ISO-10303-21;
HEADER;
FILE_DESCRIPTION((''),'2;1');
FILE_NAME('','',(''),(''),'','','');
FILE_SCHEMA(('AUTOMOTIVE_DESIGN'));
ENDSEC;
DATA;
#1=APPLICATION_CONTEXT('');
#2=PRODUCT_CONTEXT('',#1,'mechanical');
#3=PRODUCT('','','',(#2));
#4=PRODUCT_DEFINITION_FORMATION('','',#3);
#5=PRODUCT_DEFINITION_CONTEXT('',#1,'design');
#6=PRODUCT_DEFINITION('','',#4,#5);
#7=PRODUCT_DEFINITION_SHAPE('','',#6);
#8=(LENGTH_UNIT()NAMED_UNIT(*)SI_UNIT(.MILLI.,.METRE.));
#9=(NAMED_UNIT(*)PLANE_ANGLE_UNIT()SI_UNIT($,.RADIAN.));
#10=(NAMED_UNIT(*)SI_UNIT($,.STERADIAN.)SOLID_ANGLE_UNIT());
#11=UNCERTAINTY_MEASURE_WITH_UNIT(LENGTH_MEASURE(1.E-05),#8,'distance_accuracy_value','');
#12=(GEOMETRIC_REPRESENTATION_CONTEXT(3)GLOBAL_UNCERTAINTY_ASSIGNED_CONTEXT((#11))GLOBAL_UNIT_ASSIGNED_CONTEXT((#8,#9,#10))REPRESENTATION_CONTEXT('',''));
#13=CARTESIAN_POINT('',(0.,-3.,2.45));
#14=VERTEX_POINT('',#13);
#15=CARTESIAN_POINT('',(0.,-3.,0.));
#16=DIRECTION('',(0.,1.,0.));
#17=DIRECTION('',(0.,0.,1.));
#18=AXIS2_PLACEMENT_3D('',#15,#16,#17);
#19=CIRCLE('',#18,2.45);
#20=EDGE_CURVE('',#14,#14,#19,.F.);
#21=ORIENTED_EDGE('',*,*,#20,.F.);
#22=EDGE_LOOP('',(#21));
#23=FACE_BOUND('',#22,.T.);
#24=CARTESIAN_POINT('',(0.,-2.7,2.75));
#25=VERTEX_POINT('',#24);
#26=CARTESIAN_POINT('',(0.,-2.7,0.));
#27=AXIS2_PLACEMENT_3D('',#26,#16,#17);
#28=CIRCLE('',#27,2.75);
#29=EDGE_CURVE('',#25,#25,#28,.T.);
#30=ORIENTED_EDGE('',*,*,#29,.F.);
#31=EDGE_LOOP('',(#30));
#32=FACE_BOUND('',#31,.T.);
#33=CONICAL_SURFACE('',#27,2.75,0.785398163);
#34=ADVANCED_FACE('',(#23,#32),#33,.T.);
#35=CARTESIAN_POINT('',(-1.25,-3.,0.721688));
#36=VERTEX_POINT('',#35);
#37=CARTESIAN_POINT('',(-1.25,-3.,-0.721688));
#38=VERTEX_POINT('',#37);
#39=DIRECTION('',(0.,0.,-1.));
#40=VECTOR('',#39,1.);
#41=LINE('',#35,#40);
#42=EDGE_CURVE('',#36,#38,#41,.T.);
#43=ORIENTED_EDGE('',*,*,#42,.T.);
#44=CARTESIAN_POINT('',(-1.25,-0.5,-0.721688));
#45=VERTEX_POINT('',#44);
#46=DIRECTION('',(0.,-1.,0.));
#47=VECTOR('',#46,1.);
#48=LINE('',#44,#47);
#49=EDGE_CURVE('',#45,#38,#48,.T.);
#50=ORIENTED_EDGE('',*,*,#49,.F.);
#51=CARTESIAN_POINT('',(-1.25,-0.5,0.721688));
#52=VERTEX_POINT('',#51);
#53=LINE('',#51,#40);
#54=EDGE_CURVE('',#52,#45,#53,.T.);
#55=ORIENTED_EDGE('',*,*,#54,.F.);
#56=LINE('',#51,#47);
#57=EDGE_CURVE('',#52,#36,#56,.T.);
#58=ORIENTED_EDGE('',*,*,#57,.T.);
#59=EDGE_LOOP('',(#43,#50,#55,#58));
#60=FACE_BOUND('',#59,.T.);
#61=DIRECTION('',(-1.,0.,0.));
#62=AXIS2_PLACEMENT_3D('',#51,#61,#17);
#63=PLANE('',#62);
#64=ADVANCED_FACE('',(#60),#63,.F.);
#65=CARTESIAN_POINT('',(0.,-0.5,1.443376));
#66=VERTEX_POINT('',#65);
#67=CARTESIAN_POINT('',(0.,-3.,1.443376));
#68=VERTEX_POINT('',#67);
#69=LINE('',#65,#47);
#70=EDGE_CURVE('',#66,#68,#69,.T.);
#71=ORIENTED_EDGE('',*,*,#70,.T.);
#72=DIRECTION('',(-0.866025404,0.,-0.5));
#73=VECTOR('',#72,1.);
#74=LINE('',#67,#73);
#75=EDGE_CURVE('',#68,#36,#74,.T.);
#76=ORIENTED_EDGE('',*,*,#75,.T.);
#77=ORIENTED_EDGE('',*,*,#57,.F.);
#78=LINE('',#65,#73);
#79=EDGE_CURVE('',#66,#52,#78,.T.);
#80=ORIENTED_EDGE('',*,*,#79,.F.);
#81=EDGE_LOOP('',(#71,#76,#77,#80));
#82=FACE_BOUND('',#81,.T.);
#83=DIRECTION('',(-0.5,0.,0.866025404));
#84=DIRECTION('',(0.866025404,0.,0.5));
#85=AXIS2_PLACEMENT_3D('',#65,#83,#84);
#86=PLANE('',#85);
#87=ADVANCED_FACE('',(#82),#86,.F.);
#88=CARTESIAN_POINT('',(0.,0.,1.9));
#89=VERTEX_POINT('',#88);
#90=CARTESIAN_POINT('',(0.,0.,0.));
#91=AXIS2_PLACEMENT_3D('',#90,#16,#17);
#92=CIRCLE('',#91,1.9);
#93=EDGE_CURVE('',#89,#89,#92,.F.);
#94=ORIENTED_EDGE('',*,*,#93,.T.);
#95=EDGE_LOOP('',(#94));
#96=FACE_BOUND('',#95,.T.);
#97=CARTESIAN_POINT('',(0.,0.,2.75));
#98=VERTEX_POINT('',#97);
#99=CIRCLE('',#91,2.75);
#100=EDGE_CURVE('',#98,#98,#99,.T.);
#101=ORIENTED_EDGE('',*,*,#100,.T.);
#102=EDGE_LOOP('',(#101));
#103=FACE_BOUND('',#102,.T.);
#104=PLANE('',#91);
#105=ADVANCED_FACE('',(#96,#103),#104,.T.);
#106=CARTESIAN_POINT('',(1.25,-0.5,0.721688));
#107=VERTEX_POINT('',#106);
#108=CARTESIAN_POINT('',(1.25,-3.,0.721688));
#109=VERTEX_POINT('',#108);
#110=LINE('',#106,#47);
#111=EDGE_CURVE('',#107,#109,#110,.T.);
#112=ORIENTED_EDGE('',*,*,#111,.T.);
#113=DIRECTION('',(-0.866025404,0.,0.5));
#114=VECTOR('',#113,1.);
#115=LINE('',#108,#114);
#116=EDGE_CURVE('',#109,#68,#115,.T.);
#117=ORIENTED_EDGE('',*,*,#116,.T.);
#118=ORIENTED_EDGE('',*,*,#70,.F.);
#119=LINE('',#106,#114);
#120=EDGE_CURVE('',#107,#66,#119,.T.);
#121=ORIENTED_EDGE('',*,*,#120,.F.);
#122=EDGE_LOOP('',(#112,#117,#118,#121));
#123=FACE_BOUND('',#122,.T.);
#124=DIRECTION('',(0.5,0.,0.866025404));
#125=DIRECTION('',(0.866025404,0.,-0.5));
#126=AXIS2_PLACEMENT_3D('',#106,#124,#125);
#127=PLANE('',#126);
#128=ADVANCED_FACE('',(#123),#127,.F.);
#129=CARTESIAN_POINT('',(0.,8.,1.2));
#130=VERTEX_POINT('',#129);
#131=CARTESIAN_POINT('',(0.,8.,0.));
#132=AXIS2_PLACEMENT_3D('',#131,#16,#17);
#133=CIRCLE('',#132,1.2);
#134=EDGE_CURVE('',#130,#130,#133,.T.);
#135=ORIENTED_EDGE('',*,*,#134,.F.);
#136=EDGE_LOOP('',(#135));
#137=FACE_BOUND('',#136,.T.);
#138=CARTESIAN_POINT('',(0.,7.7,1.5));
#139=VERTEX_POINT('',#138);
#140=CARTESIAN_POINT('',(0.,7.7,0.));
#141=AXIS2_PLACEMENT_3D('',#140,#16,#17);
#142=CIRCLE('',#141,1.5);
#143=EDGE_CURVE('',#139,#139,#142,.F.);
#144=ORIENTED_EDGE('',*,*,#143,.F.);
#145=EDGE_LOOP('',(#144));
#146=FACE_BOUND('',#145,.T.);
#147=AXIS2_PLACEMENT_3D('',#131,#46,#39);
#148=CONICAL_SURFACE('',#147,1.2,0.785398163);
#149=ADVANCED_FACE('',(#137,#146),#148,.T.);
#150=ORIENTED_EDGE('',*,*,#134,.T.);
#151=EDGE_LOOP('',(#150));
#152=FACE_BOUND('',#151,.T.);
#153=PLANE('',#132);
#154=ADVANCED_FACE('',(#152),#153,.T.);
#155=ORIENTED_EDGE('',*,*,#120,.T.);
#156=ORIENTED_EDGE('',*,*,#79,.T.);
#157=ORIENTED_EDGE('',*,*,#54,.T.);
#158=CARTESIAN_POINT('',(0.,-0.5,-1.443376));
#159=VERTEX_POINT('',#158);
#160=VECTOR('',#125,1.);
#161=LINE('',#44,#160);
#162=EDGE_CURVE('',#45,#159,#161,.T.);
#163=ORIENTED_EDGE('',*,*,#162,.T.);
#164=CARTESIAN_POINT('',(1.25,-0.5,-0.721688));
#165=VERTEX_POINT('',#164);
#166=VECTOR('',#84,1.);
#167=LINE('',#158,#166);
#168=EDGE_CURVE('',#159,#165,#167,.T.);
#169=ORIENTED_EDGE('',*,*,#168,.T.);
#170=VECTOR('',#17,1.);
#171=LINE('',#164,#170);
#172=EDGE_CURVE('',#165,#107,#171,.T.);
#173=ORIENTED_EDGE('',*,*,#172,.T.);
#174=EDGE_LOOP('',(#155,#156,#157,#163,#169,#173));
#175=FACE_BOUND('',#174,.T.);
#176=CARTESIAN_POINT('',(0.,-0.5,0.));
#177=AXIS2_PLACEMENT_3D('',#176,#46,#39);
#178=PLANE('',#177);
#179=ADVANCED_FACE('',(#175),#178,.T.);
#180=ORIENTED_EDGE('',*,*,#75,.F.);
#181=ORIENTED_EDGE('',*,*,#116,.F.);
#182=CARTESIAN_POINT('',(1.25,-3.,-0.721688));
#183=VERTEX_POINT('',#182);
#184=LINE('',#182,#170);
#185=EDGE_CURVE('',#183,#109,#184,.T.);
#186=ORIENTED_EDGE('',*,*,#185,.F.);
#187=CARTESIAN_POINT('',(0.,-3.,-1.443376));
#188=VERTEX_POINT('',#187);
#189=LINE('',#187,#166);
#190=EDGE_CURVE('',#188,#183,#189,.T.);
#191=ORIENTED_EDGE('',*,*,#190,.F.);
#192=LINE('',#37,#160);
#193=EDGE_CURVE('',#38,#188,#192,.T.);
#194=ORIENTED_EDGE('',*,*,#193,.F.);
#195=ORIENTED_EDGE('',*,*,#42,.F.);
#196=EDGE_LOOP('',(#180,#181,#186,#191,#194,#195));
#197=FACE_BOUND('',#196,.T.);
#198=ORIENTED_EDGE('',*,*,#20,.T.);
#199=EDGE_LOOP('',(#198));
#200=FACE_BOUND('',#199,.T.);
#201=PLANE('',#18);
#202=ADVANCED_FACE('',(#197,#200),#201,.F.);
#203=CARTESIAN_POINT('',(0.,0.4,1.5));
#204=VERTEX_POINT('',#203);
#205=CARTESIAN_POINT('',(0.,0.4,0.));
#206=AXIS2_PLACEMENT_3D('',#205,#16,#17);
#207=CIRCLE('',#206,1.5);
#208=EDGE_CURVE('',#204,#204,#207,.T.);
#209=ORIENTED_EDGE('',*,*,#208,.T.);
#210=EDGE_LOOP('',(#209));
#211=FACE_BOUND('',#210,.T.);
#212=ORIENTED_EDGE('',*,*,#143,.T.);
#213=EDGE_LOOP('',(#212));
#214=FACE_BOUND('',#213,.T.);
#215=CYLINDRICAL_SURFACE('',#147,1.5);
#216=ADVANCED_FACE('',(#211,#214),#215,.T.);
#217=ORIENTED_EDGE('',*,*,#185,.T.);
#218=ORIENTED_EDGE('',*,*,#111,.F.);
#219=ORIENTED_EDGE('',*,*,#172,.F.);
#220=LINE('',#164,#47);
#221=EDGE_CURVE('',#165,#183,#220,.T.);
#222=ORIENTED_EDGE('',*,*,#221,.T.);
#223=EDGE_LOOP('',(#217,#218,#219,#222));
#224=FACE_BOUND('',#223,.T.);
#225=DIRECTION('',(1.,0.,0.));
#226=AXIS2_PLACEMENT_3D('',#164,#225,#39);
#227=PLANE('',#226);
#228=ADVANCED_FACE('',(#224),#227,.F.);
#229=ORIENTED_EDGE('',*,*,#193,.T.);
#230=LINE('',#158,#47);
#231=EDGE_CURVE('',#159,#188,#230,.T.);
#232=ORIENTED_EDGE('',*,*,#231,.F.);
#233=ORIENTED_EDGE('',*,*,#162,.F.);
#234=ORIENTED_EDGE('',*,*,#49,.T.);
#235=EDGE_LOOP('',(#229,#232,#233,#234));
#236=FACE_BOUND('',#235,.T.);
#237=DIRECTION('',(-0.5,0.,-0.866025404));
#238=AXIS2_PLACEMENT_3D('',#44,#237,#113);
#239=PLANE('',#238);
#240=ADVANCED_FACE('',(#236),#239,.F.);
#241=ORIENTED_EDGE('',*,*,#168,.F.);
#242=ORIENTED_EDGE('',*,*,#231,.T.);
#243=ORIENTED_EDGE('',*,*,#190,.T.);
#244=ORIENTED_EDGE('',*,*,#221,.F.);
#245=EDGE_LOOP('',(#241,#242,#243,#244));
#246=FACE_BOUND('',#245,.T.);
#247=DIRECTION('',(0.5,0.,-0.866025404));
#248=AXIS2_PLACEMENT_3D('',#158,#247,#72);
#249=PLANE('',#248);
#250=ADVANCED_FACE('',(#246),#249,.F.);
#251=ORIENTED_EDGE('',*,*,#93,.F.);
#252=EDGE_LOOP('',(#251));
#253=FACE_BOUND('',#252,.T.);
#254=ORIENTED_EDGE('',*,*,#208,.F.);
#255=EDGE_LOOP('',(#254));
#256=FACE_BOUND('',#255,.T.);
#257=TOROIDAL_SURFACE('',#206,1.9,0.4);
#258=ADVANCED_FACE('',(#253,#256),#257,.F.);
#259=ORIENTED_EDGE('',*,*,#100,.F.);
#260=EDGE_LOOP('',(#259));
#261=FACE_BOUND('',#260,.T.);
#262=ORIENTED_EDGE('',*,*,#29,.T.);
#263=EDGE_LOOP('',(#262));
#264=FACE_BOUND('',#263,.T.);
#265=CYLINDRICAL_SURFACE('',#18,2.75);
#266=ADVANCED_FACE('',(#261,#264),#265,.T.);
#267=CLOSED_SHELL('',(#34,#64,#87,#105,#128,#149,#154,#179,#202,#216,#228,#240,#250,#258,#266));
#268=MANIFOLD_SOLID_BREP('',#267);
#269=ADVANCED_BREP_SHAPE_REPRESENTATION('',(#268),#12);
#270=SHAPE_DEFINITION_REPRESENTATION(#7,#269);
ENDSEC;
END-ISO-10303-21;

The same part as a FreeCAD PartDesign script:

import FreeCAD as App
import Part
import Sketcher
Q = App.Units.Quantity


def edges_at(feature, points):
    """Names of the edges that pass closest to the given points."""
    edges = feature.Shape.Edges
    near = lambda p: min(range(len(edges)), key=lambda i: edges[i].distToShape(Part.Vertex(*p))[0])
    return sorted({f"Edge{near(p) + 1}" for p in points})

doc = App.newDocument("Part")
body = doc.addObject("PartDesign::Body", "Body")

# Sketch on XZ plane
sketch1 = doc.addObject("Sketcher::SketchObject", "Sketch")
body.addObject(sketch1)
sketch1.AttachmentSupport = (doc.XZ_Plane, [""])
sketch1.MapMode = "FlatFace"
sketch1.addGeometry(Part.Circle(App.Vector(0, 0, 0), App.Vector(0, 0, 1), 1.5), False)
sketch1.addConstraint([
    Sketcher.Constraint("Coincident", 0, 3, -1, 1),
    Sketcher.Constraint("Diameter", 0, 3.0),
])
pad1 = doc.addObject("PartDesign::Pad", "Pad")
body.addObject(pad1)
pad1.Profile = sketch1
pad1.Length = 8
pad1.Reversed = True

# Sketch on XZ plane
sketch2 = doc.addObject("Sketcher::SketchObject", "Sketch001")
body.addObject(sketch2)
sketch2.AttachmentSupport = (doc.XZ_Plane, [""])
sketch2.MapMode = "FlatFace"
sketch2.addGeometry(Part.Circle(App.Vector(0, 0, 0), App.Vector(0, 0, 1), 2.8), False)
sketch2.addConstraint([
    Sketcher.Constraint("Coincident", 0, 3, -1, 1),
    Sketcher.Constraint("Diameter", 0, 5.5),
])
pad2 = doc.addObject("PartDesign::Pad", "Pad001")
body.addObject(pad2)
pad2.Profile = sketch2
pad2.Length = 3
doc.recompute()

fillet = doc.addObject("PartDesign::Fillet", "Fillet")
body.addObject(fillet)
fillet.Base = (pad2, edges_at(pad2, [(0, 0, -1.5)]))
fillet.Radius = 0.4
doc.recompute()

chamfer = doc.addObject("PartDesign::Chamfer", "Chamfer")
body.addObject(chamfer)
chamfer.Base = (fillet, edges_at(fillet, [(0, 8, -1.5), (0, -3, -2.75)]))
chamfer.Size = 0.3

# Sketch on XZ plane
sketch3 = doc.addObject("Sketcher::SketchObject", "Sketch002")
body.addObject(sketch3)
sketch3.AttachmentSupport = (doc.XZ_Plane, [""])
sketch3.MapMode = "FlatFace"
sketch3.AttachmentOffset = App.Placement(App.Vector(0, 0, 3), App.Rotation())
sketch3.addGeometry([
    Part.LineSegment(App.Vector(0, 1.4, 0), App.Vector(-1.2, 0.7, 0)),  # 0
    Part.LineSegment(App.Vector(-1.2, 0.7, 0), App.Vector(-1.2, -0.7, 0)),  # 1
    Part.LineSegment(App.Vector(-1.2, -0.7, 0), App.Vector(0, -1.4, 0)),  # 2
    Part.LineSegment(App.Vector(0, -1.4, 0), App.Vector(1.2, -0.7, 0)),  # 3
    Part.LineSegment(App.Vector(1.2, -0.7, 0), App.Vector(1.2, 0.7, 0)),  # 4
    Part.LineSegment(App.Vector(1.2, 0.7, 0), App.Vector(0, 1.4, 0)),  # 5
], False)
sketch3.addConstraint([
    Sketcher.Constraint("Coincident", 0, 2, 1, 1),
    Sketcher.Constraint("Coincident", 1, 2, 2, 1),
    Sketcher.Constraint("Coincident", 2, 2, 3, 1),
    Sketcher.Constraint("Coincident", 3, 2, 4, 1),
    Sketcher.Constraint("Coincident", 4, 2, 5, 1),
    Sketcher.Constraint("Coincident", 5, 2, 0, 1),
    Sketcher.Constraint("Vertical", 1),
    Sketcher.Constraint("Vertical", 4),
    Sketcher.Constraint("Symmetric", 0, 2, 3, 2, -1, 1),
    Sketcher.Constraint("Symmetric", 2, 2, 5, 2, -1, 1),
    Sketcher.Constraint("PointOnObject", 2, 2, -2),
    Sketcher.Constraint("Parallel", 2, 5),
    Sketcher.Constraint("Horizontal", 1, 2, 3, 2),
    Sketcher.Constraint("Angle", 0, Q("-150 deg")),
    Sketcher.Constraint("DistanceX", 1, 2, 3, 2, 2.5),
    Sketcher.Constraint("DistanceY", 1, 2, 1, 1, 1.443376),
])
pocket1 = doc.addObject("PartDesign::Pocket", "Pocket")
body.addObject(pocket1)
pocket1.Profile = sketch3
pocket1.Length = 2.5

doc.recompute()
